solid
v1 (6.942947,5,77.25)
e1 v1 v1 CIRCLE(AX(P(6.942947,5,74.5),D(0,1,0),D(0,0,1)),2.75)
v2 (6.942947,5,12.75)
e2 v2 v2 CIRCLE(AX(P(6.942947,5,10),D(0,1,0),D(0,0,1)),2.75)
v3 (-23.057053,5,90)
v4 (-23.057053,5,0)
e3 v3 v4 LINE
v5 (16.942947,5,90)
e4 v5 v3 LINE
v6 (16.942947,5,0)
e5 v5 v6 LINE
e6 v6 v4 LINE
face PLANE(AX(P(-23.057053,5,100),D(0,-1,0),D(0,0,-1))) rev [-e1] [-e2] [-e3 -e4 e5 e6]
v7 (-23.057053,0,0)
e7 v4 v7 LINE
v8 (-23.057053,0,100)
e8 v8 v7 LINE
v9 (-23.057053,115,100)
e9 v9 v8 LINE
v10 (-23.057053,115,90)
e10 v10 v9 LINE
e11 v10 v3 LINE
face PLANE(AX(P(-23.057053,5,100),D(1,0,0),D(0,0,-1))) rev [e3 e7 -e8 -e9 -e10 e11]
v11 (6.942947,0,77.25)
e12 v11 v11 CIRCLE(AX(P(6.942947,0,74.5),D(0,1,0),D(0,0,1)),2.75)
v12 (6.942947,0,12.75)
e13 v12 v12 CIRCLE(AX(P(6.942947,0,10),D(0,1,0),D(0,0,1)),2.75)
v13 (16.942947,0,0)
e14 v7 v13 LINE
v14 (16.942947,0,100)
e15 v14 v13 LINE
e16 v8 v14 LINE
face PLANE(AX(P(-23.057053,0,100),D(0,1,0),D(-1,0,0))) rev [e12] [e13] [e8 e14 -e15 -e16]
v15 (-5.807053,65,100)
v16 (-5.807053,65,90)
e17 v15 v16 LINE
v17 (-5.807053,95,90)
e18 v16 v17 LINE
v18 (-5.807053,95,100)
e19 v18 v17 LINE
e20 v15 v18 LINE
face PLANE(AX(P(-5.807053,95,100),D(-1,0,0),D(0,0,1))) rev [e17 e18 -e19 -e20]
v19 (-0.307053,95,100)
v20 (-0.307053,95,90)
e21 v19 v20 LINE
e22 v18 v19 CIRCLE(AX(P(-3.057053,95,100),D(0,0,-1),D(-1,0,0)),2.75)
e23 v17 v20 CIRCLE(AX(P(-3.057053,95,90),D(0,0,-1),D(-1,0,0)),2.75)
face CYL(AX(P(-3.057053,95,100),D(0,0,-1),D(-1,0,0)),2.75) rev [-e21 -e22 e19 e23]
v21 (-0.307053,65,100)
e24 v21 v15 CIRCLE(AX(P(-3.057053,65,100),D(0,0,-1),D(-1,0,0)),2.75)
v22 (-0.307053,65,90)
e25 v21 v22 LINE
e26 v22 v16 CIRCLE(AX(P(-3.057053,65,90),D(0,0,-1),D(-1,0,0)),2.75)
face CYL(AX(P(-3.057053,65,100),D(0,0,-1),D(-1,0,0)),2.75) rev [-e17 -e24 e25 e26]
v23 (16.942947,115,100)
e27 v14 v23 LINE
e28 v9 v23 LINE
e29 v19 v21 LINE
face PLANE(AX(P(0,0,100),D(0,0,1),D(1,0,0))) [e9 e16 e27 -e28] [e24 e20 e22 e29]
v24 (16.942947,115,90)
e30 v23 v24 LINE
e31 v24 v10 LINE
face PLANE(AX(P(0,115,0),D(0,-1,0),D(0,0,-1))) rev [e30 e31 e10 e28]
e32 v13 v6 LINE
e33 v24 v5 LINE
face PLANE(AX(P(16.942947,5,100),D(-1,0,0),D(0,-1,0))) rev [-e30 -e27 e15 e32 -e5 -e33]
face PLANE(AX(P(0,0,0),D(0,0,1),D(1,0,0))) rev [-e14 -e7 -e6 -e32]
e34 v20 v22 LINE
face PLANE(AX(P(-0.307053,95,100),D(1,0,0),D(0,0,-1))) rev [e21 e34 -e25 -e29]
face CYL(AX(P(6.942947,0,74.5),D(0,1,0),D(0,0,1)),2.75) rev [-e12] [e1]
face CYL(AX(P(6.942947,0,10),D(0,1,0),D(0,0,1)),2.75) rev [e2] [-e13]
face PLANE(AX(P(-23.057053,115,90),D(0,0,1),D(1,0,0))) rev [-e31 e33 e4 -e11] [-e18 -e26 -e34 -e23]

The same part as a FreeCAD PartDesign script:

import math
import FreeCAD as App
import Part
import Sketcher
from FreeCAD import Vector


def add_polygon(sketch, points):
    """Adds a closed chain of lines whose ends are joined by coincident constraints."""
    first, n = sketch.GeometryCount, len(points)
    for a, b in zip(points, points[1:] + points[:1]):
        sketch.addGeometry(Part.LineSegment(App.Vector(*a, 0), App.Vector(*b, 0)), False)
    for i in range(n):
        sketch.addConstraint(Sketcher.Constraint("Coincident", first + i, 2, first + (i + 1) % n, 1))

doc = App.newDocument("Part")
params = doc.addObject("Spreadsheet::Sheet", "Params")
for row, (alias, value) in enumerate([
    ("sketch1_width", "40 mm"),
    ("sketch1_height", "5 mm"),
    ("pad1_length", "100 mm"),
    ("sketch2_diameter", "5.5 mm"),
    ("sketch3_width", "40 mm"),
    ("sketch3_height", "10 mm"),
    ("pad2_length", "110 mm"),
    ("sketch4_height", "30 mm"),
    ("sketch4_radius", "2.75 mm"),
], start=1):
    params.set(f"A{row}", alias)
    params.set(f"B{row}", "=" + value)
    params.setAlias(f"B{row}", alias)

body = doc.addObject("PartDesign::Body", "Body")

sketch1 = body.newObject("Sketcher::SketchObject", "Sketch")
sketch1.AttachmentSupport = (doc.getObject("XY_Plane"), [""])
sketch1.MapMode = "FlatFace"
add_polygon(sketch1, [(-23, 5), (-23, 0), (17, 0), (17, 5)])
sketch1.addConstraint([
    Sketcher.Constraint("Vertical", 0),
    Sketcher.Constraint("Horizontal", 1),
    Sketcher.Constraint("Vertical", 2),
    Sketcher.Constraint("Horizontal", 3),
    Sketcher.Constraint("PointOnObject", 0, 2, -1),
    Sketcher.Constraint("DistanceX", 1, 1, 1, 2, 40.0),
    Sketcher.Constraint("DistanceY", 0, 2, 0, 1, 5.0),
    Sketcher.Constraint("DistanceX", 0, 2, -1, 1, 23.057053),
])
sketch1.setExpression("Constraints[9]", "Params.sketch1_width")
sketch1.setExpression("Constraints[10]", "Params.sketch1_height")
pad1 = body.newObject("PartDesign::Pad", "Pad")
pad1.Profile = sketch1
pad1.setExpression("Length", "Params.pad1_length")

sketch2 = body.newObject("Sketcher::SketchObject", "Sketch001")
sketch2.AttachmentSupport = (doc.getObject("XZ_Plane"), [""])
sketch2.MapMode = "FlatFace"
sketch2.AttachmentOffset = App.Placement(Vector(0, 0, -5), App.Rotation())
sketch2.addGeometry([
    Part.Circle(Vector(6.9, 10, 0), Vector(0, 0, 1), 2.8),
    Part.Circle(Vector(6.9, 74.5, 0), Vector(0, 0, 1), 2.8),
], False)
sketch2.addConstraint([
    Sketcher.Constraint("Equal", 0, 1),
    Sketcher.Constraint("Vertical", 0, 3, 1, 3),
    Sketcher.Constraint("Diameter", 0, 5.5),
    Sketcher.Constraint("DistanceY", -1, 1, 0, 3, 10.0),
    Sketcher.Constraint("DistanceY", -1, 1, 1, 3, 74.5),
    Sketcher.Constraint("DistanceX", -1, 1, 0, 3, 6.942947),
])
sketch2.setExpression("Constraints[2]", "Params.sketch2_diameter")
pocket1 = body.newObject("PartDesign::Pocket", "Pocket")
pocket1.Profile = sketch2
pocket1.Type = "ThroughAll"
pocket1.Reversed = True

sketch3 = body.newObject("Sketcher::SketchObject", "Sketch002")
sketch3.AttachmentSupport = (doc.getObject("XZ_Plane"), [""])
sketch3.MapMode = "FlatFace"
sketch3.AttachmentOffset = App.Placement(Vector(0, 0, -5), App.Rotation())
add_polygon(sketch3, [(-23, 90), (-23, 100), (17, 100), (17, 90)])
sketch3.addConstraint([
    Sketcher.Constraint("Vertical", 0),
    Sketcher.Constraint("Horizontal", 1),
    Sketcher.Constraint("Vertical", 2),
    Sketcher.Constraint("Horizontal", 3),
    Sketcher.Constraint("DistanceX", 1, 1, 1, 2, 40.0),
    Sketcher.Constraint("DistanceY", 0, 1, 0, 2, 10.0),
    Sketcher.Constraint("DistanceY", -1, 1, 0, 2, 100.0),
    Sketcher.Constraint("DistanceX", 0, 2, -1, 1, 23.057053),
])
sketch3.setExpression("Constraints[8]", "Params.sketch3_width")
sketch3.setExpression("Constraints[9]", "Params.sketch3_height")
pad2 = body.newObject("PartDesign::Pad", "Pad001")
pad2.Profile = sketch3
pad2.setExpression("Length", "Params.pad2_length")
pad2.Reversed = True

sketch4 = body.newObject("Sketcher::SketchObject", "Sketch003")
sketch4.AttachmentSupport = (doc.getObject("XY_Plane"), [""])
sketch4.MapMode = "FlatFace"
sketch4.AttachmentOffset = App.Placement(Vector(0, 0, 90), App.Rotation())
sketch4.addGeometry([
    Part.LineSegment(Vector(-5.8, 65, 0), Vector(-5.8, 95, 0)),
    Part.ArcOfCircle(Part.Circle(Vector(-3.1, 95, 0), Vector(0, 0, 1), 2.8), math.radians(0), math.radians(180)),
    Part.LineSegment(Vector(-0.3, 95, 0), Vector(-0.3, 65, 0)),
    Part.ArcOfCircle(Part.Circle(Vector(-3.1, 65, 0), Vector(0, 0, 1), 2.8), math.radians(180), math.radians(360)),
], False)
sketch4.addConstraint([
    Sketcher.Constraint("Tangent", 0, 2, 1, 2),
    Sketcher.Constraint("Tangent", 1, 1, 2, 1),
    Sketcher.Constraint("Tangent", 2, 2, 3, 2),
    Sketcher.Constraint("Tangent", 3, 1, 0, 1),
    Sketcher.Constraint("Vertical", 0),
    Sketcher.Constraint("Vertical", 2),
    Sketcher.Constraint("DistanceY", 0, 1, 0, 2, 30.0),
    Sketcher.Constraint("Radius", 1, 2.75),
    Sketcher.Constraint("DistanceY", -1, 1, 1, 3, 95.0),
    Sketcher.Constraint("DistanceX", 1, 3, -1, 1, 3.057053),
])
sketch4.setExpression("Constraints[6]", "Params.sketch4_height")
sketch4.setExpression("Constraints[7]", "Params.sketch4_radius")
pocket2 = body.newObject("PartDesign::Pocket", "Pocket001")
pocket2.Profile = sketch4
pocket2.Type = "ThroughAll"
pocket2.Reversed = True

doc.recompute()
